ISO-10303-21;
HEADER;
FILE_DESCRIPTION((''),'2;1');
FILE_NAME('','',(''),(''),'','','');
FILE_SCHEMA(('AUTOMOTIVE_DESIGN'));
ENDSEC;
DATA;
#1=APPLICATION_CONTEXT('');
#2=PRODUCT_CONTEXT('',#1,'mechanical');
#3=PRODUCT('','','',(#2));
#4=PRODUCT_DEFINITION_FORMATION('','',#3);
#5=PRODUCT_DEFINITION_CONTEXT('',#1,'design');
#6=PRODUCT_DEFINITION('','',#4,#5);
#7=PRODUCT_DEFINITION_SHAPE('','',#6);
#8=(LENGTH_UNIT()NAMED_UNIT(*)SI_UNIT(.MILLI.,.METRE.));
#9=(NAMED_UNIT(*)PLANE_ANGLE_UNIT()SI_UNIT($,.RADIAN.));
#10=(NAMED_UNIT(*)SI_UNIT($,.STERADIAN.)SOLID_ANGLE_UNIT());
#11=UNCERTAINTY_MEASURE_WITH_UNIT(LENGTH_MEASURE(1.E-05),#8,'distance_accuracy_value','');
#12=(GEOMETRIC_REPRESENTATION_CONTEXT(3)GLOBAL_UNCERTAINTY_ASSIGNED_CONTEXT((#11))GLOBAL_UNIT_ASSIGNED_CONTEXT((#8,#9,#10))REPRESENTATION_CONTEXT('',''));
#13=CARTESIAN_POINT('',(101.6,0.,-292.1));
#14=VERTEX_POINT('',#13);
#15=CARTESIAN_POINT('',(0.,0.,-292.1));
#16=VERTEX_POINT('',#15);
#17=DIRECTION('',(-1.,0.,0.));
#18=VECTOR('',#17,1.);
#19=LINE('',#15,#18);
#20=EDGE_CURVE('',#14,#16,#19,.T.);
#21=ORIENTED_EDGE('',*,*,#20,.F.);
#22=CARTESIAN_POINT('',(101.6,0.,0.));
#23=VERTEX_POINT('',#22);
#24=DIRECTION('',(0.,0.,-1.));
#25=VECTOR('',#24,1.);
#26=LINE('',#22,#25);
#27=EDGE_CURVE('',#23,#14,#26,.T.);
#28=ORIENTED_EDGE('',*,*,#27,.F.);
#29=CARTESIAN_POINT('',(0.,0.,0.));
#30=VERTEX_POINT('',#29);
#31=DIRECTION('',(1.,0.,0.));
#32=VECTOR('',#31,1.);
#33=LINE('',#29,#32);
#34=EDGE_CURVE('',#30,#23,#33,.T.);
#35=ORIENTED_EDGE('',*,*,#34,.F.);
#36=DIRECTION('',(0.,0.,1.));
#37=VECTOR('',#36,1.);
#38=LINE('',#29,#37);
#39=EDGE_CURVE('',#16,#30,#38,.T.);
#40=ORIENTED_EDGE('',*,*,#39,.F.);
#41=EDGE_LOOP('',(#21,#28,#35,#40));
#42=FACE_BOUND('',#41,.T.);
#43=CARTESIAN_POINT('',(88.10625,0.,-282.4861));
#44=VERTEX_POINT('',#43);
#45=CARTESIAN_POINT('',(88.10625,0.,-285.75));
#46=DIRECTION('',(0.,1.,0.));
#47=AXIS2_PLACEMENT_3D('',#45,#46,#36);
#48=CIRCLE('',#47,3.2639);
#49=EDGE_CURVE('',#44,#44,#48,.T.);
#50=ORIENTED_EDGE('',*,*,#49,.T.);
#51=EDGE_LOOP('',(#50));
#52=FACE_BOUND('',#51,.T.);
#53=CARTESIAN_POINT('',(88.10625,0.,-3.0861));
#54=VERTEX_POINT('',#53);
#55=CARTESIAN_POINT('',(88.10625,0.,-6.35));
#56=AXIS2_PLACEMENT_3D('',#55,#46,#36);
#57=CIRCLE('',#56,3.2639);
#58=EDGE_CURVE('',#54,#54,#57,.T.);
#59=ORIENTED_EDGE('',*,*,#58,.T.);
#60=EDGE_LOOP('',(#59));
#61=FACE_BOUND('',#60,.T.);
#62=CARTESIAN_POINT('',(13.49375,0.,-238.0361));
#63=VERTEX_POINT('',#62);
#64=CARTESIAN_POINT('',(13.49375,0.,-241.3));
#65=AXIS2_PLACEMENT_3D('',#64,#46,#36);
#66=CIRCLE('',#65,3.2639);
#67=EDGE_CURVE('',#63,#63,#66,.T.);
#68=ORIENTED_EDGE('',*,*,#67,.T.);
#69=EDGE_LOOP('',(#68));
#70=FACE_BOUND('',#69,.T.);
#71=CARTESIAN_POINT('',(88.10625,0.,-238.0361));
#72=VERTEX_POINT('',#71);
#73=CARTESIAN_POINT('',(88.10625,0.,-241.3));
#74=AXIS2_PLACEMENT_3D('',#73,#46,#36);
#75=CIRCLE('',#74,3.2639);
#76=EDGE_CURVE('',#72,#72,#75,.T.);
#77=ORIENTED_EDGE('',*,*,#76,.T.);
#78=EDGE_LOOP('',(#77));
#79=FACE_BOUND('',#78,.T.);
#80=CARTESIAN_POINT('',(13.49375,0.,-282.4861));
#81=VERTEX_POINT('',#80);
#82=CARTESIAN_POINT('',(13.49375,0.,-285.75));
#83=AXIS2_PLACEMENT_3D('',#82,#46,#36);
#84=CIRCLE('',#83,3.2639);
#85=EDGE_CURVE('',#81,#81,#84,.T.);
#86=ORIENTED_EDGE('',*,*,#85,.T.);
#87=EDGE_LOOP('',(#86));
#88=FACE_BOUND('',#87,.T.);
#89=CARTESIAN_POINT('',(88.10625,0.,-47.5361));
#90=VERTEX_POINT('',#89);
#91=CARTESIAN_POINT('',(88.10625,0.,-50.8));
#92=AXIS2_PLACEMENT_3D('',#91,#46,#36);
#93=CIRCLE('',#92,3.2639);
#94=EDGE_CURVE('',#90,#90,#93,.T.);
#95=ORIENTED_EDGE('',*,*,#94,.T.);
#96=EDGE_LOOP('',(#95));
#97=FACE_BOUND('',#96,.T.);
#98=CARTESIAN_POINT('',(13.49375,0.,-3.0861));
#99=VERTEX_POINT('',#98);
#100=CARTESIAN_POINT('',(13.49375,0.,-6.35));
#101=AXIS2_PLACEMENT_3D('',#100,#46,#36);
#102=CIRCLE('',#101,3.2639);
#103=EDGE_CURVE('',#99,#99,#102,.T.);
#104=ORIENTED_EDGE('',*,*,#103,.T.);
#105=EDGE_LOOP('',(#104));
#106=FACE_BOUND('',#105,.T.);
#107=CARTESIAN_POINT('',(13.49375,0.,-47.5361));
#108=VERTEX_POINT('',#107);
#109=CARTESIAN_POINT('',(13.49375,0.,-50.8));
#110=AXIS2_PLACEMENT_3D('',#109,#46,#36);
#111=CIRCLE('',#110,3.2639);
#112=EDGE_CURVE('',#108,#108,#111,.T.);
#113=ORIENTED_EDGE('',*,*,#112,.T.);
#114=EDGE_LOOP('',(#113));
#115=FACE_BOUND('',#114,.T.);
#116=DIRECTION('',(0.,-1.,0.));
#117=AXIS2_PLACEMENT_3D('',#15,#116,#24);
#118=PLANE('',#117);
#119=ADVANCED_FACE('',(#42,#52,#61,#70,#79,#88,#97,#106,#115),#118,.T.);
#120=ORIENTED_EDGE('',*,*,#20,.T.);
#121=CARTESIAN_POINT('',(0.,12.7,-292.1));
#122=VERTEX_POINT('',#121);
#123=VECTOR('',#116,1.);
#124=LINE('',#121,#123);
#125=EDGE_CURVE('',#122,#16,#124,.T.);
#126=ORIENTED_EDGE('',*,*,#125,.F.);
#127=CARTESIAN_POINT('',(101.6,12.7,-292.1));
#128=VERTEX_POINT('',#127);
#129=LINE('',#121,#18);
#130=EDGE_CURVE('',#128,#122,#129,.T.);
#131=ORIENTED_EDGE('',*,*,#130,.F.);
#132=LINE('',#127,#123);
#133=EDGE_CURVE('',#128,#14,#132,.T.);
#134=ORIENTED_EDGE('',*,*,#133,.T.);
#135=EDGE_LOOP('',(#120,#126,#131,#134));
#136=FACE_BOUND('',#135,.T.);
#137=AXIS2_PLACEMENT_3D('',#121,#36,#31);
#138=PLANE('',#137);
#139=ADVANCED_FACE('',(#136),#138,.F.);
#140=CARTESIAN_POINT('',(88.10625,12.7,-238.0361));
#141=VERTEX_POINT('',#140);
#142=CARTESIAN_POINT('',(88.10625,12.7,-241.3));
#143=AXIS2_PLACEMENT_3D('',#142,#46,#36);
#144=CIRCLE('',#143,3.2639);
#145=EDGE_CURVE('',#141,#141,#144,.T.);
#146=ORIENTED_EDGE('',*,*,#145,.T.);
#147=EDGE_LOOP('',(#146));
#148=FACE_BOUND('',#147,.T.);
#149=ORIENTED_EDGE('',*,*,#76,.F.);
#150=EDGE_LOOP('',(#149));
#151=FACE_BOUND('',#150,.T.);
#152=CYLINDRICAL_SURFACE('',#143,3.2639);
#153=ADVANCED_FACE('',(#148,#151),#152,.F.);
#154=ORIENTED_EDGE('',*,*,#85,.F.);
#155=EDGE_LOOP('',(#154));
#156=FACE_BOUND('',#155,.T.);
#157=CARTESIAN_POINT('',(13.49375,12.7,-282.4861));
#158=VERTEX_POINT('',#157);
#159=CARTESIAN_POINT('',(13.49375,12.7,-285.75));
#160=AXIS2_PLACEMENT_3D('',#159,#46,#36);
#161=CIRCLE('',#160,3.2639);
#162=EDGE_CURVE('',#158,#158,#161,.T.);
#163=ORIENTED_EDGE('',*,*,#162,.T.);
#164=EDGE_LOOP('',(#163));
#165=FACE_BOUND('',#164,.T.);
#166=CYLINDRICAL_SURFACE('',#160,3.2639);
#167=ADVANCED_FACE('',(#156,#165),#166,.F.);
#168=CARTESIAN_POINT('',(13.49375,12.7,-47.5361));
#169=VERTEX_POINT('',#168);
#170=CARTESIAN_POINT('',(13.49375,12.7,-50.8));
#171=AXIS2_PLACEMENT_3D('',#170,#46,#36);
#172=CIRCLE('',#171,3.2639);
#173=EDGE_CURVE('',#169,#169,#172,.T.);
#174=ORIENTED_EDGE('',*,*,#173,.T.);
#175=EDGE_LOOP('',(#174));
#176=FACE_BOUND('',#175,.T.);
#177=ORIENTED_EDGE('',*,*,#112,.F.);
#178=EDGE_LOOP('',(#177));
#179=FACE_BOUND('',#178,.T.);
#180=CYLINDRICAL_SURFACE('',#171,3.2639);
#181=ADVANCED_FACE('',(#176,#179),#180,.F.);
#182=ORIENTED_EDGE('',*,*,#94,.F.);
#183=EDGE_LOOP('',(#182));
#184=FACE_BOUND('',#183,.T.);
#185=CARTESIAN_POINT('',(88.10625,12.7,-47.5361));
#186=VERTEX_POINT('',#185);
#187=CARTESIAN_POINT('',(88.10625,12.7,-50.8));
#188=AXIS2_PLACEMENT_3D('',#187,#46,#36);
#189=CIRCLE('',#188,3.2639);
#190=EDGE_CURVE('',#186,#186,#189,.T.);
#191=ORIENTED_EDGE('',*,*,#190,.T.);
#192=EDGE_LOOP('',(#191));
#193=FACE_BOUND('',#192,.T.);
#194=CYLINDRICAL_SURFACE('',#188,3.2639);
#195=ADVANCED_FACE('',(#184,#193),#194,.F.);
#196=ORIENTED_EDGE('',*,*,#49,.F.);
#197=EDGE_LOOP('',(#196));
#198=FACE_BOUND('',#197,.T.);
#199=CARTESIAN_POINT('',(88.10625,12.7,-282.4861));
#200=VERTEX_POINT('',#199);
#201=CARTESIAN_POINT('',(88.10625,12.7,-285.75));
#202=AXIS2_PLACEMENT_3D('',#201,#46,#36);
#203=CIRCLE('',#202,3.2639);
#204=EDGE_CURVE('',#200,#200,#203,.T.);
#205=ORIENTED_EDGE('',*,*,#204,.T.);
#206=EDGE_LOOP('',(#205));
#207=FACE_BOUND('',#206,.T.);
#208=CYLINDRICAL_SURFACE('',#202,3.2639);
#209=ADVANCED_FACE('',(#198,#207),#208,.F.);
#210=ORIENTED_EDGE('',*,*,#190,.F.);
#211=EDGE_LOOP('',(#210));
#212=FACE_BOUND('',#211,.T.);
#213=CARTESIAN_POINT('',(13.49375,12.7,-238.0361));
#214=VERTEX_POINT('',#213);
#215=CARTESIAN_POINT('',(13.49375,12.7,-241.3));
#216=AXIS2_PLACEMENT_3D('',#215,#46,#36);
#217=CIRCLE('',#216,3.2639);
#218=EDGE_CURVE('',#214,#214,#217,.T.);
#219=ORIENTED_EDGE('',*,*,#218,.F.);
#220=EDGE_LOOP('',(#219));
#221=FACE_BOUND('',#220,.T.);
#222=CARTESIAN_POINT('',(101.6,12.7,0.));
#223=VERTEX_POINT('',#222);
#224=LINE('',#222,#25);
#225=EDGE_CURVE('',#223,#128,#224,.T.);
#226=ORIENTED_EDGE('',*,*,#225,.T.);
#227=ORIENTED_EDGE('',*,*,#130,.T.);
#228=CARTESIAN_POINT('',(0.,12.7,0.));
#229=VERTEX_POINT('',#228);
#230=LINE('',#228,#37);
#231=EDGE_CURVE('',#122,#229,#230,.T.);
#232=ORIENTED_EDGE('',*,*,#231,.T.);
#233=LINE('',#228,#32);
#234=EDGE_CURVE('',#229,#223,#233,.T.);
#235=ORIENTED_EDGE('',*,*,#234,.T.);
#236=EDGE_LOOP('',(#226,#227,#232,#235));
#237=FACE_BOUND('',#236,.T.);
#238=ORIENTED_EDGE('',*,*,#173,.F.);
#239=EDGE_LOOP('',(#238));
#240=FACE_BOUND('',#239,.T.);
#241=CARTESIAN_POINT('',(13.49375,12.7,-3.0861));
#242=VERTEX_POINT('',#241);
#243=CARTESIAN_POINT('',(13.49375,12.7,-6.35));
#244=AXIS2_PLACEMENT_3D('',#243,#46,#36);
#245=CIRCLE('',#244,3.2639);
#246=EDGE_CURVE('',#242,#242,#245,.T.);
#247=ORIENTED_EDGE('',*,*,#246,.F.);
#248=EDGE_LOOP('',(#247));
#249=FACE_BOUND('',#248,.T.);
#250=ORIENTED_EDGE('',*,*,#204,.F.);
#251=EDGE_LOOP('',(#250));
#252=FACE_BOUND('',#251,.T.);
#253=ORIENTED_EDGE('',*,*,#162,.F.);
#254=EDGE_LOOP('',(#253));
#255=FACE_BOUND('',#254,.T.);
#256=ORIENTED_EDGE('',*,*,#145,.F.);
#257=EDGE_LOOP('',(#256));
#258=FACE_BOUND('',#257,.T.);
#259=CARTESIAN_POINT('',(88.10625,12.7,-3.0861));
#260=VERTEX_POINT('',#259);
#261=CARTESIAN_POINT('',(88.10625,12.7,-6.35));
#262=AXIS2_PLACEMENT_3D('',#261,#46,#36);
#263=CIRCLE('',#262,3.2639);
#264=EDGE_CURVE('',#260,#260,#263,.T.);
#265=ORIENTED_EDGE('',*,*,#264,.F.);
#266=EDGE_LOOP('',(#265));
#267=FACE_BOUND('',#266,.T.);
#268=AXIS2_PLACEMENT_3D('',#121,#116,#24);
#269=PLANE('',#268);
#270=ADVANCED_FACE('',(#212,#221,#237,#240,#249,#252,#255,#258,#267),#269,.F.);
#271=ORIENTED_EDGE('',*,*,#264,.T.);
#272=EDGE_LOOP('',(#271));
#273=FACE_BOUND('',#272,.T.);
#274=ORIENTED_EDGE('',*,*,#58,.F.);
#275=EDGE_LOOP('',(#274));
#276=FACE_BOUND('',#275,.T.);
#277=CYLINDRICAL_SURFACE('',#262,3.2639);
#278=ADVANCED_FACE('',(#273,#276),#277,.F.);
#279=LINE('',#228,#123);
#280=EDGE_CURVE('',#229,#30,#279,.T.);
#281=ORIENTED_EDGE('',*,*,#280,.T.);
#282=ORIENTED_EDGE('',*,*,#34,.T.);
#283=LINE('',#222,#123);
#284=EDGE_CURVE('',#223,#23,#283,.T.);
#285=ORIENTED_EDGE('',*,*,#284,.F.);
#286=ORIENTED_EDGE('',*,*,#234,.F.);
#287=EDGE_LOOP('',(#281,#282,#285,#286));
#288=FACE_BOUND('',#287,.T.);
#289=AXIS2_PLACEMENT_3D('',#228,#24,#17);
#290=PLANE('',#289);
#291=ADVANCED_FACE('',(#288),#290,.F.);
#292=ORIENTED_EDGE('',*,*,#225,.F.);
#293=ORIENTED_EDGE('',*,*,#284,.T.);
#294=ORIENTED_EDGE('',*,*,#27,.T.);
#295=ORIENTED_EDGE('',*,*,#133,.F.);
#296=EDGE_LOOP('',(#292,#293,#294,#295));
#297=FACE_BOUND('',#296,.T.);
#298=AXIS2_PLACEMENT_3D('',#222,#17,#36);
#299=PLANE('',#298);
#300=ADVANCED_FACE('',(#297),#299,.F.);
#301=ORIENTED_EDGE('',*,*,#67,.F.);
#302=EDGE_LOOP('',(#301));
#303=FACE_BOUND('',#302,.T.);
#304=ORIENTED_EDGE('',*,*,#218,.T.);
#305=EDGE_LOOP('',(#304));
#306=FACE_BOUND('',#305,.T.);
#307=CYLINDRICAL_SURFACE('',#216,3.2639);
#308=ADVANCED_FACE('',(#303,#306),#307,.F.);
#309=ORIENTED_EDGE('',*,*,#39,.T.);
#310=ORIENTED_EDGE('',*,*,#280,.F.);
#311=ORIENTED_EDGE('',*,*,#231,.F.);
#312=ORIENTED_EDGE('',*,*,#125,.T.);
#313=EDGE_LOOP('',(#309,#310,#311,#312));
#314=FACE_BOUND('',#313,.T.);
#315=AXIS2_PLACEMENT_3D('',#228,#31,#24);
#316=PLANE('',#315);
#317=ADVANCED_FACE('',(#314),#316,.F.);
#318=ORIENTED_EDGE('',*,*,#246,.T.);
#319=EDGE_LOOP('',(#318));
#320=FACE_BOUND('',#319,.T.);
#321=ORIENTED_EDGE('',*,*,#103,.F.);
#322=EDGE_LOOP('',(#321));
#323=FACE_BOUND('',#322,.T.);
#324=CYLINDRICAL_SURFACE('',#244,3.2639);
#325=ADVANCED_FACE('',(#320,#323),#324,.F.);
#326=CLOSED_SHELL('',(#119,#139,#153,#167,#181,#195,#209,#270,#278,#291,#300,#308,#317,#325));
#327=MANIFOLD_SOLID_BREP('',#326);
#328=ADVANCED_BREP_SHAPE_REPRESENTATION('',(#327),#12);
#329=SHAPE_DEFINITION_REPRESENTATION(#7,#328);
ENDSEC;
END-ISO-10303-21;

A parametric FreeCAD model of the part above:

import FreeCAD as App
import Part
import Sketcher
from FreeCAD import Vector
Q = App.Units.Quantity


def add_polygon(sketch, points):
    """Adds a closed chain of lines whose ends are joined by coincident constraints."""
    first, n = sketch.GeometryCount, len(points)
    for a, b in zip(points, points[1:] + points[:1]):
        sketch.addGeometry(Part.LineSegment(App.Vector(*a, 0), App.Vector(*b, 0)), False)
    for i in range(n):
        sketch.addConstraint(Sketcher.Constraint("Coincident", first + i, 2, first + (i + 1) % n, 1))

doc = App.newDocument("Part")
body = doc.addObject("PartDesign::Body", "Body")

# Sketch on XZ plane
sketch1 = body.newObject("Sketcher::SketchObject", "Sketch")
sketch1.AttachmentSupport = (doc.getObject("XZ_Plane"), [""])
sketch1.MapMode = "FlatFace"
add_polygon(sketch1, [(0, -292.1), (0, 0), (101.6, 0), (101.6, -292.1)])  # lines 0-3
sketch1.addConstraint([
    Sketcher.Constraint("Vertical", 0),
    Sketcher.Constraint("Horizontal", 1),
    Sketcher.Constraint("Vertical", 2),
    Sketcher.Constraint("Horizontal", 3),
    Sketcher.Constraint("Coincident", 0, 2, -1, 1),
    Sketcher.Constraint("DistanceX", 1, 1, 1, 2, Q("4 in")),
    Sketcher.Constraint("DistanceY", 0, 1, 0, 2, Q("11.5 in")),
])
pad1 = body.newObject("PartDesign::Pad", "Pad")
pad1.Profile = sketch1
pad1.Length = Q("0.5 in")
pad1.Reversed = True

# Sketch on XZ plane
sketch2 = body.newObject("Sketcher::SketchObject", "Sketch001")
sketch2.AttachmentSupport = (doc.getObject("XZ_Plane"), [""])
sketch2.MapMode = "FlatFace"
sketch2.AttachmentOffset = App.Placement(Vector(0, 0, -0.5 * 25.4), App.Rotation())
sketch2.addGeometry([
    Part.Circle(Vector(88.10625, -6.35, 0), Vector(0, 0, 1), 3.2639),  # 0
    Part.Circle(Vector(13.49375, -241.3, 0), Vector(0, 0, 1), 3.2639),  # 1
    Part.Circle(Vector(88.10625, -241.3, 0), Vector(0, 0, 1), 3.2639),  # 2
    Part.Circle(Vector(88.10625, -285.75, 0), Vector(0, 0, 1), 3.2639),  # 3
    Part.Circle(Vector(13.49375, -285.75, 0), Vector(0, 0, 1), 3.2639),  # 4
    Part.Circle(Vector(88.10625, -50.8, 0), Vector(0, 0, 1), 3.2639),  # 5
    Part.Circle(Vector(13.49375, -50.8, 0), Vector(0, 0, 1), 3.2639),  # 6
    Part.Circle(Vector(13.49375, -6.35, 0), Vector(0, 0, 1), 3.2639),  # 7
], False)
sketch2.addConstraint([
    Sketcher.Constraint("Equal", 0, 1),
    Sketcher.Constraint("Equal", 1, 2),
    Sketcher.Constraint("Equal", 2, 3),
    Sketcher.Constraint("Equal", 3, 4),
    Sketcher.Constraint("Equal", 4, 5),
    Sketcher.Constraint("Equal", 5, 6),
    Sketcher.Constraint("Equal", 6, 7),
    Sketcher.Constraint("Horizontal", 1, 3, 2, 3),
    Sketcher.Constraint("Horizontal", 3, 3, 4, 3),
    Sketcher.Constraint("Horizontal", 5, 3, 6, 3),
    Sketcher.Constraint("Horizontal", 0, 3, 7, 3),
    Sketcher.Constraint("Vertical", 0, 3, 2, 3),
    Sketcher.Constraint("Vertical", 2, 3, 3, 3),
    Sketcher.Constraint("Vertical", 1, 3, 4, 3),
    Sketcher.Constraint("Vertical", 3, 3, 5, 3),
    Sketcher.Constraint("Vertical", 4, 3, 6, 3),
    Sketcher.Constraint("Vertical", 6, 3, 7, 3),
    Sketcher.Constraint("Diameter", 0, Q("0.257 in")),
    Sketcher.Constraint("DistanceY", 5, 3, -1, 1, Q("2 in")),
    Sketcher.Constraint("DistanceY", 3, 3, 0, 3, Q("11 in")),
    Sketcher.Constraint("DistanceY", 1, 3, -1, 1, Q("9.5 in")),
    Sketcher.Constraint("DistanceY", 0, 3, -1, 1, Q("0.25 in")),
    Sketcher.Constraint("DistanceX", -1, 1, 0, 3, Q("3.46875 in")),
    Sketcher.Constraint("DistanceX", -1, 1, 1, 3, Q("0.53125 in")),
])
doc.recompute()
hole = body.newObject("PartDesign::Hole", "Hole")
hole.Profile = sketch2
hole.ThreadType = "None"
hole.Diameter = Q("0.257 in")
hole.DepthType = "ThroughAll"
hole.Reversed = True

doc.recompute()
